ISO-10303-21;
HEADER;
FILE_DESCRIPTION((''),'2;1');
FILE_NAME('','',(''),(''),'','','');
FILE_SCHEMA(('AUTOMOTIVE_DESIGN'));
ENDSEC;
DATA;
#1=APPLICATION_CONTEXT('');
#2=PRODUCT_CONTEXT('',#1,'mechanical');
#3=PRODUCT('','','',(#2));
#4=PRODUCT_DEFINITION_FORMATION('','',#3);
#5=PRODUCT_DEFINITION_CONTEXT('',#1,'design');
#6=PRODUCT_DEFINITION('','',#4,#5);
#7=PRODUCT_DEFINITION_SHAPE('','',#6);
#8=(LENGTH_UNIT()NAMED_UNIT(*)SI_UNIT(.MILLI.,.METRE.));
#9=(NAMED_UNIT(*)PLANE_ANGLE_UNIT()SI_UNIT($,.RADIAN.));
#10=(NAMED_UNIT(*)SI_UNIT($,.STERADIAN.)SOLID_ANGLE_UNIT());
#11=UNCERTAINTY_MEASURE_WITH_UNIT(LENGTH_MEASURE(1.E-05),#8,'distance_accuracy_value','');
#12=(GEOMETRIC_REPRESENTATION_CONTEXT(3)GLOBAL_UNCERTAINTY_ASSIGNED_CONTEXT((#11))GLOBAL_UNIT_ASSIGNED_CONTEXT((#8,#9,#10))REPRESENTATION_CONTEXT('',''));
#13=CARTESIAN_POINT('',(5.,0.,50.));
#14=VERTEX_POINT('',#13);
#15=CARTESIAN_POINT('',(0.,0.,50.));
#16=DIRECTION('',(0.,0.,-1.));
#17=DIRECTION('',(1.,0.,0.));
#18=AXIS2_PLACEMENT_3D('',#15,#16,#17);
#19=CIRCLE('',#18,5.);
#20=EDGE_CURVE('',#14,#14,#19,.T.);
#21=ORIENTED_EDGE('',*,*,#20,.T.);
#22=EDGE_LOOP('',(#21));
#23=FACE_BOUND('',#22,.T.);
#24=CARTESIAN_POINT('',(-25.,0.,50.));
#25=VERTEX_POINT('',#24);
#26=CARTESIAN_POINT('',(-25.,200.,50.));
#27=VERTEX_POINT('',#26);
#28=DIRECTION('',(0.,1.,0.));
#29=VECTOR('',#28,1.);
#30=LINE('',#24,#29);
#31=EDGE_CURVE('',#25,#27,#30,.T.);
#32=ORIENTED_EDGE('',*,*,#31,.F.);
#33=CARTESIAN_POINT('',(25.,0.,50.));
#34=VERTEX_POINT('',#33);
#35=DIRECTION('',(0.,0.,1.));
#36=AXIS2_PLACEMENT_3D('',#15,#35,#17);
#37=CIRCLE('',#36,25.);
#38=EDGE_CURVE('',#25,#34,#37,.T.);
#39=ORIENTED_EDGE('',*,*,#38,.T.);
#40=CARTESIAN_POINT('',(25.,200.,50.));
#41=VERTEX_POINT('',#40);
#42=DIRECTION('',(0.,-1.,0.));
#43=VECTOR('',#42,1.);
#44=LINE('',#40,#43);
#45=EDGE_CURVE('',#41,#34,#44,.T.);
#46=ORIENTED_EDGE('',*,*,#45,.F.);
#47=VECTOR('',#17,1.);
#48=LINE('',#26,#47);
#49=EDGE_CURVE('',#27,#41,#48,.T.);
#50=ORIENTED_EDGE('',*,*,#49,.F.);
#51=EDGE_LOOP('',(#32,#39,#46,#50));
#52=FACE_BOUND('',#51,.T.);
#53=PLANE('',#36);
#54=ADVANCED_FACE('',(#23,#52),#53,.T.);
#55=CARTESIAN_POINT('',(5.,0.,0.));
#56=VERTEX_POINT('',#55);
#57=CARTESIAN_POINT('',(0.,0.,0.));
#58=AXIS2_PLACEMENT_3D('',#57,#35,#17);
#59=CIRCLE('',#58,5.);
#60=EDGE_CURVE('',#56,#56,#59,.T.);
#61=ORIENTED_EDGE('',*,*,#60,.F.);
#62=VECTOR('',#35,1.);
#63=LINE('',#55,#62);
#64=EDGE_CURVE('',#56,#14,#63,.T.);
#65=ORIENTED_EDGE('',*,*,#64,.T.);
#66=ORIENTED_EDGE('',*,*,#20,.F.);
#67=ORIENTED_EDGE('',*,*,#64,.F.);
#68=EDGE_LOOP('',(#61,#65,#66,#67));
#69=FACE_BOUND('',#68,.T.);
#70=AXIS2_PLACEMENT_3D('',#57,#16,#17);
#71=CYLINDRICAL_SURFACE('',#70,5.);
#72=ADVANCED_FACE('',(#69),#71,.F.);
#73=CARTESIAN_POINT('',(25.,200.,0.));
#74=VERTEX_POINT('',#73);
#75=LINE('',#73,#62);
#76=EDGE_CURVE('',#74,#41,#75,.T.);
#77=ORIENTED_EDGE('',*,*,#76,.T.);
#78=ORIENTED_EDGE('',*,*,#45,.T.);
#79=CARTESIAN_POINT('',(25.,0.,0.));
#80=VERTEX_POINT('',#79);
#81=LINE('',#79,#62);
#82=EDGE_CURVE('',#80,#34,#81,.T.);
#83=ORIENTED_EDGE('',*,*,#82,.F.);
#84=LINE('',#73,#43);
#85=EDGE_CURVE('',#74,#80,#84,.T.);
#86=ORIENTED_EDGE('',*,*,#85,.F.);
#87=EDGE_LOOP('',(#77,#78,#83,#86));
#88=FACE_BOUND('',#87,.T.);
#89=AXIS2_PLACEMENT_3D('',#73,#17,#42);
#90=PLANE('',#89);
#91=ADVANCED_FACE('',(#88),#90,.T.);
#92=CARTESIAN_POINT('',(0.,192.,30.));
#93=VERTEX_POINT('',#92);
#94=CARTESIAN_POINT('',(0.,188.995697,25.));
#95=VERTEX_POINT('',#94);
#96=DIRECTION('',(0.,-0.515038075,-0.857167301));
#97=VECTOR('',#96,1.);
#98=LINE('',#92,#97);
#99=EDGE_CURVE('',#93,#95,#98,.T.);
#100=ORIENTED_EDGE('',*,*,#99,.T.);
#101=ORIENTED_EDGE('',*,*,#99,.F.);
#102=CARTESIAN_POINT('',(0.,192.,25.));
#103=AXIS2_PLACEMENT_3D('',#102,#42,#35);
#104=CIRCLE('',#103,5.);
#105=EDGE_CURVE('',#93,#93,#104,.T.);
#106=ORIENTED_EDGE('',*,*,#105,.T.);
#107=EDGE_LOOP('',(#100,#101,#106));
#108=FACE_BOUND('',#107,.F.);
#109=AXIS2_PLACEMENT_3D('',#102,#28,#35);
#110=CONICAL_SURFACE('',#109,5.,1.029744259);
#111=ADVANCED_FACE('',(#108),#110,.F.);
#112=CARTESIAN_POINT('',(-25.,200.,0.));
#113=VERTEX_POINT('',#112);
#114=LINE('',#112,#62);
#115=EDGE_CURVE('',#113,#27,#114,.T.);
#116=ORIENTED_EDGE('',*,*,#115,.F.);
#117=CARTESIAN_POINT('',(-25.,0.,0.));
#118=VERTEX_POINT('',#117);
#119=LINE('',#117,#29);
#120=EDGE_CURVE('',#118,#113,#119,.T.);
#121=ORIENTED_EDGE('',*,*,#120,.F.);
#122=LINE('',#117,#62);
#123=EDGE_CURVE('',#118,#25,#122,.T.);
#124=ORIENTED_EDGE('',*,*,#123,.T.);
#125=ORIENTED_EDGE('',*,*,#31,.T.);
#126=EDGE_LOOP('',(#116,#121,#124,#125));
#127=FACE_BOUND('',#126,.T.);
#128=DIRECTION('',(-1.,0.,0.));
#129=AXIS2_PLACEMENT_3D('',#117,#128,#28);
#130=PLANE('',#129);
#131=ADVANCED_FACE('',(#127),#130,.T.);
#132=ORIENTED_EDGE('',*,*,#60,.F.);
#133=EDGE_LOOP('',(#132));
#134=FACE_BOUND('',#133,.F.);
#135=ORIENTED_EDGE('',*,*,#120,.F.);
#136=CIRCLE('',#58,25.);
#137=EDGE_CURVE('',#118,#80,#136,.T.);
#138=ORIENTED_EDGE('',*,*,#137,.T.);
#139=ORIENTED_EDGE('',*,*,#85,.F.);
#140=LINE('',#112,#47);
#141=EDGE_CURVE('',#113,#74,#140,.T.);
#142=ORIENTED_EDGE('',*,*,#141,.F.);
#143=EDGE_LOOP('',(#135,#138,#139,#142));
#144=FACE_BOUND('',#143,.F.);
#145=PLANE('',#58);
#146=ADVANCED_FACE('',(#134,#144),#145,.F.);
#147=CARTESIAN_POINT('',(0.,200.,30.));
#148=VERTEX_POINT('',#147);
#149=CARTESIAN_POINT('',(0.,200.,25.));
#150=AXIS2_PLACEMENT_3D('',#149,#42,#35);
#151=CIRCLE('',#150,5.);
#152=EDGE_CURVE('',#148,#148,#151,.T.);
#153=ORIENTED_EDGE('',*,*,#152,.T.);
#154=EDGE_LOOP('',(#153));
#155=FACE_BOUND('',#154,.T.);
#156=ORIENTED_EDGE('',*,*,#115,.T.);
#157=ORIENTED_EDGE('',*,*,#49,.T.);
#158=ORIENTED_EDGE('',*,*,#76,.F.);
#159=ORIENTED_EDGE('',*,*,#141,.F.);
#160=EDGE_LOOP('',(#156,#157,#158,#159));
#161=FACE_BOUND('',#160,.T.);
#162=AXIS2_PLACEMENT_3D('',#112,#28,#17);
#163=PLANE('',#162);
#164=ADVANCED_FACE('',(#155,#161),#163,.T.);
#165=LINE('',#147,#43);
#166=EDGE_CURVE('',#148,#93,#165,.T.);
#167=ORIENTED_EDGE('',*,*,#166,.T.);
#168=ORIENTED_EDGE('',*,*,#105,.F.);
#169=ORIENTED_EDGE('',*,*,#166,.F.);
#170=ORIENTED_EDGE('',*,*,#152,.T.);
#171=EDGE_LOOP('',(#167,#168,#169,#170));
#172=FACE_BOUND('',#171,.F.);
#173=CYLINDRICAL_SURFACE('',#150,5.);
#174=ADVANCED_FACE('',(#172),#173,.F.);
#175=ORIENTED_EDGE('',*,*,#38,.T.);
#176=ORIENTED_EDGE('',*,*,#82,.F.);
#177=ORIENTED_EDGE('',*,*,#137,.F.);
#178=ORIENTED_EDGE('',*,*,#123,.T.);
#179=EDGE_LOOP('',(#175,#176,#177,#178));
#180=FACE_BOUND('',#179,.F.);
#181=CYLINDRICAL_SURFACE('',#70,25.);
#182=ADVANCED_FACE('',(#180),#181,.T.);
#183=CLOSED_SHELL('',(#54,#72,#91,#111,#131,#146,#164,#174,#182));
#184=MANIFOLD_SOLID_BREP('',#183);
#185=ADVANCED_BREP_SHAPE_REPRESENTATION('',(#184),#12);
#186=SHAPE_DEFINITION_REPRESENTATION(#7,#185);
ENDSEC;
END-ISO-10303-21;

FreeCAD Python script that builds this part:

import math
import FreeCAD as App
import Part
import Sketcher

V = App.Vector

doc = App.newDocument("Part")
body = doc.addObject("PartDesign::Body", "Body")

# Sketch on XY plane
sketch1 = body.newObject("Sketcher::SketchObject", "Sketch")
sketch1.AttachmentSupport = (doc.getObject("XY_Plane"), [""])
sketch1.MapMode = "FlatFace"
sketch1.addGeometry(Part.ArcOfCircle(Part.Circle(V(0, 0, 0), V(0, 0, 1), 25), math.radians(180), math.radians(360)), False)
sketch1.addGeometry(Part.LineSegment(V(25, 0, 0), V(25, 200, 0)), False)
sketch1.addGeometry(Part.LineSegment(V(25, 200, 0), V(-25, 200, 0)), False)
sketch1.addGeometry(Part.LineSegment(V(-25, 200, 0), V(-25, 0, 0)), False)
sketch1.addGeometry(Part.Circle(V(0, 0, 0), V(0, 0, 1), 5), False)
sketch1.addConstraint(Sketcher.Constraint("Tangent", 0, 2, 1, 1))
sketch1.addConstraint(Sketcher.Constraint("Coincident", 1, 2, 2, 1))
sketch1.addConstraint(Sketcher.Constraint("Coincident", 2, 2, 3, 1))
sketch1.addConstraint(Sketcher.Constraint("Tangent", 3, 2, 0, 1))
sketch1.addConstraint(Sketcher.Constraint("Vertical", 1))
sketch1.addConstraint(Sketcher.Constraint("Horizontal", 2))
sketch1.addConstraint(Sketcher.Constraint("Vertical", 3))
sketch1.addConstraint(Sketcher.Constraint("Coincident", 0, 3, -1, 1))
sketch1.addConstraint(Sketcher.Constraint("Coincident", 4, 3, -1, 1))
sketch1.addConstraint(Sketcher.Constraint("Diameter", 4, 10.0))
sketch1.addConstraint(Sketcher.Constraint("Radius", 0, 25.0))
sketch1.addConstraint(Sketcher.Constraint("DistanceY", 1, 1, 1, 2, 200.0))
pad1 = body.newObject("PartDesign::Pad", "Pad")
pad1.Profile = sketch1
pad1.Length = 50

# Sketch on XZ plane
sketch2 = body.newObject("Sketcher::SketchObject", "Sketch001")
sketch2.AttachmentSupport = (doc.getObject("XZ_Plane"), [""])
sketch2.MapMode = "FlatFace"
sketch2.AttachmentOffset = App.Placement(V(0, 0, -200), App.Rotation())
sketch2.addGeometry(Part.Circle(V(0, 25, 0), V(0, 0, 1), 5), False)
sketch2.addConstraint(Sketcher.Constraint("PointOnObject", 0, 3, -2))
sketch2.addConstraint(Sketcher.Constraint("Diameter", 0, 10.0))
sketch2.addConstraint(Sketcher.Constraint("DistanceY", -1, 1, 0, 3, 25.0))
doc.recompute()
hole = body.newObject("PartDesign::Hole", "Hole")
hole.Profile = sketch2
hole.ThreadType = "None"
hole.Diameter = 10
hole.DepthType = "Dimension"
hole.Depth = 8
hole.DrillPoint = "Angled"
hole.DrillPointAngle = 118
hole.Reversed = True

doc.recompute()
